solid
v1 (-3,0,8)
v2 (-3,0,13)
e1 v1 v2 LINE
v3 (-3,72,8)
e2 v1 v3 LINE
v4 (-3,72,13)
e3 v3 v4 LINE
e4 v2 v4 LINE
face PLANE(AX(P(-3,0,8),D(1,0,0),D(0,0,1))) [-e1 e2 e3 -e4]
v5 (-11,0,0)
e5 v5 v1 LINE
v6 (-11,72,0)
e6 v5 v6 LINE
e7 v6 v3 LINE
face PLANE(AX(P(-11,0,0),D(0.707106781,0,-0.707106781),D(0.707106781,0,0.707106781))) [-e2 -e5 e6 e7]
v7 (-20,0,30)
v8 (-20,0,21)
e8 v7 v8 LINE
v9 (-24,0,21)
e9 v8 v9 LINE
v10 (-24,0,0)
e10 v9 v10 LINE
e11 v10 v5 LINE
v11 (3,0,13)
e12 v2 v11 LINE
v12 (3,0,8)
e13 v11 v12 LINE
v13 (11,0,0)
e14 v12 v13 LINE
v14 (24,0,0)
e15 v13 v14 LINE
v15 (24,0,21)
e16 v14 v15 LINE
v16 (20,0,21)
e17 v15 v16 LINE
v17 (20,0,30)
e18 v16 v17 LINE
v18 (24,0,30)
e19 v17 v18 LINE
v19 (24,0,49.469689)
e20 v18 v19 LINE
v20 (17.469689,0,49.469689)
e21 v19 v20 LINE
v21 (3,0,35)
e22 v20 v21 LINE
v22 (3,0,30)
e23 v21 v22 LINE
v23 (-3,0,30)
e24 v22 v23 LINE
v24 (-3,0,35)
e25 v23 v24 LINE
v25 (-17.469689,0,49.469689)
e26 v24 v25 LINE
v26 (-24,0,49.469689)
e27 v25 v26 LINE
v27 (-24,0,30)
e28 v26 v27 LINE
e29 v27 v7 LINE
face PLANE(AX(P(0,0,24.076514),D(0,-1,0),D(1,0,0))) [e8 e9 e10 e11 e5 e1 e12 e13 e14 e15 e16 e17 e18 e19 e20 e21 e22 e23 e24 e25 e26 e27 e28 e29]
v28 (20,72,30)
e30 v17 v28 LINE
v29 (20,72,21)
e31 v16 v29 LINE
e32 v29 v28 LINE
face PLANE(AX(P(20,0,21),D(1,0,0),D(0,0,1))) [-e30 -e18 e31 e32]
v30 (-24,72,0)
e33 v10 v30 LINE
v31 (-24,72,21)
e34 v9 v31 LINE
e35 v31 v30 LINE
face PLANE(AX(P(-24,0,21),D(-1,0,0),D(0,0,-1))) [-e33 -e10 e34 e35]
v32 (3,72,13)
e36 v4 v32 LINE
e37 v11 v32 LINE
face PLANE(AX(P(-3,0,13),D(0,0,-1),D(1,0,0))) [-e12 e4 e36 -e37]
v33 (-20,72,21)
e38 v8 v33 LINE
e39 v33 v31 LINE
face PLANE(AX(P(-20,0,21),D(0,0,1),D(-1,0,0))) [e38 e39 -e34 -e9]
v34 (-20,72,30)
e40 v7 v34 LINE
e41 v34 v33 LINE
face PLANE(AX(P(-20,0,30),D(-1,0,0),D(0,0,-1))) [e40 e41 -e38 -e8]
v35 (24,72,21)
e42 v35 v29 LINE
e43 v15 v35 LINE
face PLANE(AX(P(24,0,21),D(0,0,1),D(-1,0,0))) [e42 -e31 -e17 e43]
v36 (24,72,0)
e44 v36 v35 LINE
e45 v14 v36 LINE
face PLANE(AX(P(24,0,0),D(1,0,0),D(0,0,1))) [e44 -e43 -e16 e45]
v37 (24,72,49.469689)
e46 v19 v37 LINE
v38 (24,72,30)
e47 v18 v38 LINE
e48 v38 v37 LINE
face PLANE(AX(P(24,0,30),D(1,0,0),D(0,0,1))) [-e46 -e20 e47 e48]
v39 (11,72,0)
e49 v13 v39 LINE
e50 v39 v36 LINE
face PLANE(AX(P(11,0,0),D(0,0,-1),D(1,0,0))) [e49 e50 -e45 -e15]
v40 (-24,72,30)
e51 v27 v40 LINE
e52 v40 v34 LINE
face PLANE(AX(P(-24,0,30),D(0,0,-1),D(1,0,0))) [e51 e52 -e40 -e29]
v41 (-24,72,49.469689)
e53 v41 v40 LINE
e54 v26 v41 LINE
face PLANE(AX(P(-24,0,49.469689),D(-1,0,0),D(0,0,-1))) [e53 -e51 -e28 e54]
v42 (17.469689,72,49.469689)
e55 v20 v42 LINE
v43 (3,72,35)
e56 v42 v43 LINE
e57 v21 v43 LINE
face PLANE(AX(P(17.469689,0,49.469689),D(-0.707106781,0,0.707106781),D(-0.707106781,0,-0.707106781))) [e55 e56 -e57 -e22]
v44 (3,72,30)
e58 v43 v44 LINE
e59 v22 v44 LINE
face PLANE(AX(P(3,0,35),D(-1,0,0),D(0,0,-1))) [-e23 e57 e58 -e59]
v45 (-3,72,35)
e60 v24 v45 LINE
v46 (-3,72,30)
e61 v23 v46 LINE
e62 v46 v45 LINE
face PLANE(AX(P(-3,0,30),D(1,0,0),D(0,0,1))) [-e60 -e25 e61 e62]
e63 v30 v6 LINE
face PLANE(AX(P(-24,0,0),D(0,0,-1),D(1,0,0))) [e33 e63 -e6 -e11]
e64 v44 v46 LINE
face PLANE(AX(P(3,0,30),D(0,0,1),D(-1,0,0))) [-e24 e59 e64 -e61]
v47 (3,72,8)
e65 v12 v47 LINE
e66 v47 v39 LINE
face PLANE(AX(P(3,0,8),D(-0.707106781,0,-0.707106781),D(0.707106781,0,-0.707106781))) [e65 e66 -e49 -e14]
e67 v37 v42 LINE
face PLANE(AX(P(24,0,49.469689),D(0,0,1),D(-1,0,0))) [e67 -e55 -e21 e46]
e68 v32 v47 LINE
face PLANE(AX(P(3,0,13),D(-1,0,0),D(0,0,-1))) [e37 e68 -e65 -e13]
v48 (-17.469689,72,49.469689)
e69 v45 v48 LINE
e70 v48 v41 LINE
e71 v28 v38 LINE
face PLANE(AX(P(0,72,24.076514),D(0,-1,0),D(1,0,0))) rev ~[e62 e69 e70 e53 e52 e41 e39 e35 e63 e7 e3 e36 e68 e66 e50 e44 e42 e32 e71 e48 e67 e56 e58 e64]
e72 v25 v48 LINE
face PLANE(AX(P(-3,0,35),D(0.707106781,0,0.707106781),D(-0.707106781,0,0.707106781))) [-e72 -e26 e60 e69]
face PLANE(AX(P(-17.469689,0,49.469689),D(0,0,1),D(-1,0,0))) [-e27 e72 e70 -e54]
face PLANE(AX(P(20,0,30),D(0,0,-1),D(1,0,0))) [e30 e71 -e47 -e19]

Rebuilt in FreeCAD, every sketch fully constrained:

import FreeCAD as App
import Part
import Sketcher
from FreeCAD import Vector
Q = App.Units.Quantity


def add_polygon(sketch, points):
    """Adds a closed chain of lines whose ends are joined by coincident constraints."""
    first, n = sketch.GeometryCount, len(points)
    for a, b in zip(points, points[1:] + points[:1]):
        sketch.addGeometry(Part.LineSegment(App.Vector(*a, 0), App.Vector(*b, 0)), False)
    for i in range(n):
        sketch.addConstraint(Sketcher.Constraint("Coincident", first + i, 2, first + (i + 1) % n, 1))

doc = App.newDocument("Part")
body = doc.addObject("PartDesign::Body", "Body")

# Sketch on XZ plane
sketch1 = body.newObject("Sketcher::SketchObject", "Sketch")
sketch1.AttachmentSupport = (doc.getObject("XZ_Plane"), [""])
sketch1.MapMode = "FlatFace"
add_polygon(sketch1, [(-24, 21), (-24, 0), (-11, 0), (-3, 8), (-3, 13), (3, 13), (3, 8), (11, 0), (24, 0), (24, 21), (20, 21), (20, 30), (24, 30), (24, 49.469689), (17.469689, 49.469689), (3, 35), (3, 30), (-3, 30), (-3, 35), (-17.469689, 49.469689), (-24, 49.469689), (-24, 30), (-20, 30), (-20, 21)])  # lines 0-23
sketch1.addConstraint([
    Sketcher.Constraint("Vertical", 0),
    Sketcher.Constraint("Horizontal", 1),
    Sketcher.Constraint("Vertical", 3),
    Sketcher.Constraint("Horizontal", 4),
    Sketcher.Constraint("Vertical", 5),
    Sketcher.Constraint("Horizontal", 7),
    Sketcher.Constraint("Vertical", 8),
    Sketcher.Constraint("Horizontal", 9),
    Sketcher.Constraint("Vertical", 10),
    Sketcher.Constraint("Horizontal", 11),
    Sketcher.Constraint("Vertical", 12),
    Sketcher.Constraint("Horizontal", 13),
    Sketcher.Constraint("Vertical", 15),
    Sketcher.Constraint("Horizontal", 16),
    Sketcher.Constraint("Vertical", 17),
    Sketcher.Constraint("Horizontal", 19),
    Sketcher.Constraint("Vertical", 20),
    Sketcher.Constraint("Horizontal", 21),
    Sketcher.Constraint("Vertical", 22),
    Sketcher.Constraint("Horizontal", 23),
    Sketcher.Constraint("Symmetric", 1, 2, 6, 2, -1, 1),
    Sketcher.Constraint("Symmetric", 2, 2, 5, 2, -2),
    Sketcher.Constraint("Symmetric", 0, 2, 7, 2, -2),
    Sketcher.Constraint("Symmetric", 14, 2, 17, 2, -2),
    Sketcher.Constraint("Symmetric", 13, 2, 18, 2, -2),
    Sketcher.Constraint("Symmetric", 11, 2, 20, 2, -2),
    Sketcher.Constraint("Symmetric", 9, 2, 22, 2, -2),
    Sketcher.Constraint("Perpendicular", 2, 6),
    Sketcher.Constraint("Perpendicular", 6, 14),
    Sketcher.Constraint("Horizontal", 11, 2, 15, 2),
    Sketcher.Constraint("Vertical", 8, 2, 11, 2),
    Sketcher.Constraint("Vertical", 5, 2, 14, 2),
    Sketcher.Constraint("Equal", 5, 15),
    Sketcher.Constraint("DistanceX", 1, 1, 1, 2, Q("13 mm")),
    Sketcher.Constraint("DistanceX", 4, 1, 4, 2, Q("6 mm")),
    Sketcher.Constraint("DistanceX", 9, 2, 9, 1, Q("4 mm")),
    Sketcher.Constraint("DistanceY", 0, 2, 0, 1, Q("21 mm")),
    Sketcher.Constraint("DistanceY", 3, 1, 3, 2, Q("5 mm")),
    Sketcher.Constraint("DistanceY", 10, 1, 10, 2, Q("9 mm")),
    Sketcher.Constraint("DistanceX", 0, 2, -1, 1, Q("24 mm")),
    Sketcher.Constraint("DistanceX", 13, 2, 13, 1, Q("6.530311 mm")),
])
pad1 = body.newObject("PartDesign::Pad", "Pad")
pad1.Profile = sketch1
pad1.Length = 72
pad1.Reversed = True

doc.recompute()
